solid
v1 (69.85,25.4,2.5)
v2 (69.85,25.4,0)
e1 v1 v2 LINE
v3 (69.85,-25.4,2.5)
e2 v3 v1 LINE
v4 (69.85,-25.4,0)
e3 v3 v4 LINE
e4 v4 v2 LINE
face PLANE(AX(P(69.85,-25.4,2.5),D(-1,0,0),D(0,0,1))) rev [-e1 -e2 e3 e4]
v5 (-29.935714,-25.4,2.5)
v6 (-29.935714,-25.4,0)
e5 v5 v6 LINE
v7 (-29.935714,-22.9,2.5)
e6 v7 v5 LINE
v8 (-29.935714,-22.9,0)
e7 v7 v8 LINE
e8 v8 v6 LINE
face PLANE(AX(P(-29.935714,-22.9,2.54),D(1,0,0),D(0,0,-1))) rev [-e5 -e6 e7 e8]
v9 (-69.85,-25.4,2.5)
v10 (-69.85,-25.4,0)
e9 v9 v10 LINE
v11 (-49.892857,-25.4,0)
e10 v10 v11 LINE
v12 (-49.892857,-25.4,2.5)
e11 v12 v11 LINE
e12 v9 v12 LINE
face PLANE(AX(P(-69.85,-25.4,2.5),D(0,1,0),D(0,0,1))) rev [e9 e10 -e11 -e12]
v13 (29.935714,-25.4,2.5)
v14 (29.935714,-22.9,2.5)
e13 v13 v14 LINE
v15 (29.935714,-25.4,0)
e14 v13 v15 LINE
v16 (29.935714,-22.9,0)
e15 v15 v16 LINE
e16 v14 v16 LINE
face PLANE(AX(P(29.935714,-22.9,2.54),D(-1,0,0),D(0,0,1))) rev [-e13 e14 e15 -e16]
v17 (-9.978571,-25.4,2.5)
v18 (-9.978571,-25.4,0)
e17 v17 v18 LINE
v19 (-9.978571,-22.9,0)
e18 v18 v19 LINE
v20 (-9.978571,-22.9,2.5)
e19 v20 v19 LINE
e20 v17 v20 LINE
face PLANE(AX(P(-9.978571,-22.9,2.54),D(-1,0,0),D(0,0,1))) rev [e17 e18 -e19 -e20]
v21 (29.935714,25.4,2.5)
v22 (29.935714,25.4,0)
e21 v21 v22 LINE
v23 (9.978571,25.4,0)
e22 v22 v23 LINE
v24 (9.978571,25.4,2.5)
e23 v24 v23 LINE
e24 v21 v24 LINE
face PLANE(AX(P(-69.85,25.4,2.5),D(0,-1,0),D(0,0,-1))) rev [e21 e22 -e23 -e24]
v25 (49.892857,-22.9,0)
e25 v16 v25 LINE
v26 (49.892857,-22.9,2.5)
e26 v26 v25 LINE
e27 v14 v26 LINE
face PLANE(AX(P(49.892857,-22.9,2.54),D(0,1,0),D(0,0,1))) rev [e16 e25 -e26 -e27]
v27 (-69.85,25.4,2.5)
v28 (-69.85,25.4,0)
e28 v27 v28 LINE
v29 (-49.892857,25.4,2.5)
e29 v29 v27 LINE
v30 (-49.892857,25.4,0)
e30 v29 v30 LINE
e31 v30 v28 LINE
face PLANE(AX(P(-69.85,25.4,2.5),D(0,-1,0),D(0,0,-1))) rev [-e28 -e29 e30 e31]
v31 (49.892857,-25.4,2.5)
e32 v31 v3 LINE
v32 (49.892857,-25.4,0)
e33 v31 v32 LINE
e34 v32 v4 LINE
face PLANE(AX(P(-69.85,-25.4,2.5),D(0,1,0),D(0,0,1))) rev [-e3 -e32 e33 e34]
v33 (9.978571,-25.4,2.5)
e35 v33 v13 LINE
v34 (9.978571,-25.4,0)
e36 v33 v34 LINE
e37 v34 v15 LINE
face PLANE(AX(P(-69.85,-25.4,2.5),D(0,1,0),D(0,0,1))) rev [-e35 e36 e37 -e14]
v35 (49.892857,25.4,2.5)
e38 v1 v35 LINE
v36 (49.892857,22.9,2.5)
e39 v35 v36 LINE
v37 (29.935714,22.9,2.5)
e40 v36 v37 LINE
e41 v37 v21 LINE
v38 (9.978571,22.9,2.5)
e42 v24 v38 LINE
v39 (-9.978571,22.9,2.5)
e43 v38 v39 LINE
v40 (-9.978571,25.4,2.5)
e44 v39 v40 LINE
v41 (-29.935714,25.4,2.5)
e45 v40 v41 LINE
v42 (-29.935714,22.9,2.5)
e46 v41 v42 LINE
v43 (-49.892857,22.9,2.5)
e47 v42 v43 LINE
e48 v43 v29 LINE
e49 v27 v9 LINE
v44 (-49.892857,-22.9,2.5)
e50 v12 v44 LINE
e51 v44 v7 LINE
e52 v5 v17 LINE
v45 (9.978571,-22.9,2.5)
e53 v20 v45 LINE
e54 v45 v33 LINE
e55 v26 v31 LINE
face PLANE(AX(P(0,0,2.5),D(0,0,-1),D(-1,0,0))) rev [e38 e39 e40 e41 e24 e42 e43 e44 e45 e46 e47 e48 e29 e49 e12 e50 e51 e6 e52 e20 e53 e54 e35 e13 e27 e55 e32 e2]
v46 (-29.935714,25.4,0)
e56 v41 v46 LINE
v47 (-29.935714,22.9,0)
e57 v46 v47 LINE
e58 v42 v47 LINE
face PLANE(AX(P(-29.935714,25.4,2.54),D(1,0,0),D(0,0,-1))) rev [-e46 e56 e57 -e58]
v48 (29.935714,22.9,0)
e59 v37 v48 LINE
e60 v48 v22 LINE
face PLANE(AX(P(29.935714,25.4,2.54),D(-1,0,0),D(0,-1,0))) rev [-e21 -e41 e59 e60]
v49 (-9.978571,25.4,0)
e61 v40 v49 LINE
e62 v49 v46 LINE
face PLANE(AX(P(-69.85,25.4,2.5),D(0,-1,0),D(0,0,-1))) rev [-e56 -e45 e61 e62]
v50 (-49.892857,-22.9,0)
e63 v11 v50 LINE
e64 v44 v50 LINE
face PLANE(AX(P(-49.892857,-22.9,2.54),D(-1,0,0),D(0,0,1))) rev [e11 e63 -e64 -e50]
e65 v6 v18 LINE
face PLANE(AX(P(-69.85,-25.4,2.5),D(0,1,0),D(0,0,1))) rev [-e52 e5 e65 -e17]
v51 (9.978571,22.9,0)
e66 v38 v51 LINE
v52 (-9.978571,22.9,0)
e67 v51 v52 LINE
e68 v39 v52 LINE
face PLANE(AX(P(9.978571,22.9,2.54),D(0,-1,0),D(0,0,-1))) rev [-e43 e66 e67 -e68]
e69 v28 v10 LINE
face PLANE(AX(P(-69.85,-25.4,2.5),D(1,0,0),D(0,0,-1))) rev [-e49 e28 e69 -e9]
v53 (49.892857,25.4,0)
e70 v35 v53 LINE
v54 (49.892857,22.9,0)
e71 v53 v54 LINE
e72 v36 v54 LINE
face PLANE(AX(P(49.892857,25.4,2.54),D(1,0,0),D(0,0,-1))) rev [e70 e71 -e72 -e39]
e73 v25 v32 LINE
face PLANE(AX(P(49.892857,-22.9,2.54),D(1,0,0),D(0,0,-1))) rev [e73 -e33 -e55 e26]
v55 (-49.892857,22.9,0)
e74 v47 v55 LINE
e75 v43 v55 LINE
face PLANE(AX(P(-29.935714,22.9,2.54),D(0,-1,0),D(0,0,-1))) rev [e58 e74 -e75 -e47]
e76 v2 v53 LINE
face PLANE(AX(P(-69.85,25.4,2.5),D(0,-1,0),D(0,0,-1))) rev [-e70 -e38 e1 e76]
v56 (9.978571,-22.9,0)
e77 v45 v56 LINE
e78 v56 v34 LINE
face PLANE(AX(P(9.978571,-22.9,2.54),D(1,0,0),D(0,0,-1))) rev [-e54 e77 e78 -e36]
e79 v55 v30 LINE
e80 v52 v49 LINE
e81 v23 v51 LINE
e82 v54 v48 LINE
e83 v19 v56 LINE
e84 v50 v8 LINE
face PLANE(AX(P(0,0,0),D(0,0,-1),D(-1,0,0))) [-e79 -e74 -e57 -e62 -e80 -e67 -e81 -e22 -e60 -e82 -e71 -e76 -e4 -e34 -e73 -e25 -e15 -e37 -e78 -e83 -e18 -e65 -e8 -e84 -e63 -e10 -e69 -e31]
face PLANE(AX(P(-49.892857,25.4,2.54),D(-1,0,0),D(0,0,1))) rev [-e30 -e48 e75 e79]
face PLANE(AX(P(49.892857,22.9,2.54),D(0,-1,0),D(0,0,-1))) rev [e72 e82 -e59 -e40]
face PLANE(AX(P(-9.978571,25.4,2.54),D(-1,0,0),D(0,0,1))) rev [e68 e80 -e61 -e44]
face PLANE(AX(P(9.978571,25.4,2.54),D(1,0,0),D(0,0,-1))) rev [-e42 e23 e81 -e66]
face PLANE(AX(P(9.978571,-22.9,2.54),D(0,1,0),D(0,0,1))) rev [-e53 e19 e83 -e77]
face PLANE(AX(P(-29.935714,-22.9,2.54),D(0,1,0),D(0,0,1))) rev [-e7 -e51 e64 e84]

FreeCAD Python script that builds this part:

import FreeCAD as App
import Part
import Sketcher
Q = App.Units.Quantity

doc = App.newDocument("Part")
body = doc.addObject("PartDesign::Body", "Body")

# Sketch on XY plane
sketch1 = body.newObject("Sketcher::SketchObject", "Sketch")
sketch1.AttachmentSupport = (doc.getObject("XY_Plane"), [""])
sketch1.MapMode = "FlatFace"
sketch1.addGeometry(Part.LineSegment(App.Vector(-70, 25, 0), App.Vector(-70, -25, 0)), False)
sketch1.addGeometry(Part.LineSegment(App.Vector(-70, -25, 0), App.Vector(70, -25, 0)), False)
sketch1.addGeometry(Part.LineSegment(App.Vector(70, -25, 0), App.Vector(70, 25, 0)), False)
sketch1.addGeometry(Part.LineSegment(App.Vector(70, 25, 0), App.Vector(-70, 25, 0)), False)
sketch1.addConstraint(Sketcher.Constraint("Coincident", 0, 2, 1, 1))
sketch1.addConstraint(Sketcher.Constraint("Coincident", 1, 2, 2, 1))
sketch1.addConstraint(Sketcher.Constraint("Coincident", 2, 2, 3, 1))
sketch1.addConstraint(Sketcher.Constraint("Coincident", 3, 2, 0, 1))
sketch1.addConstraint(Sketcher.Constraint("Vertical", 0))
sketch1.addConstraint(Sketcher.Constraint("Horizontal", 1))
sketch1.addConstraint(Sketcher.Constraint("Vertical", 2))
sketch1.addConstraint(Sketcher.Constraint("Horizontal", 3))
sketch1.addConstraint(Sketcher.Constraint("Symmetric", 0, 2, 2, 2, -1, 1))
sketch1.addConstraint(Sketcher.Constraint("DistanceY", 0, 2, 0, 1, Q("2 in")))
sketch1.addConstraint(Sketcher.Constraint("DistanceX", 1, 1, 1, 2, Q("5.5 in")))
pad1 = body.newObject("PartDesign::Pad", "Pad")
pad1.Profile = sketch1
pad1.Length = 2.5

# Sketch on XY plane
sketch2 = body.newObject("Sketcher::SketchObject", "Sketch001")
sketch2.AttachmentSupport = (doc.getObject("XY_Plane"), [""])
sketch2.MapMode = "FlatFace"
sketch2.addGeometry(Part.LineSegment(App.Vector(49.9, 25.4, 0), App.Vector(49.9, 22.9, 0)), False)
sketch2.addGeometry(Part.LineSegment(App.Vector(49.9, 22.9, 0), App.Vector(29.9, 22.9, 0)), False)
sketch2.addGeometry(Part.LineSegment(App.Vector(29.9, 22.9, 0), App.Vector(29.9, 25.4, 0)), False)
sketch2.addGeometry(Part.LineSegment(App.Vector(29.9, 25.4, 0), App.Vector(49.9, 25.4, 0)), False)
sketch2.addGeometry(Part.LineSegment(App.Vector(10, 25.4, 0), App.Vector(10, 22.9, 0)), False)
sketch2.addGeometry(Part.LineSegment(App.Vector(10, 22.9, 0), App.Vector(-10, 22.9, 0)), False)
sketch2.addGeometry(Part.LineSegment(App.Vector(-10, 22.9, 0), App.Vector(-10, 25.4, 0)), False)
sketch2.addGeometry(Part.LineSegment(App.Vector(-10, 25.4, 0), App.Vector(10, 25.4, 0)), False)
sketch2.addGeometry(Part.LineSegment(App.Vector(-29.9, 25.4, 0), App.Vector(-29.9, 22.9, 0)), False)
sketch2.addGeometry(Part.LineSegment(App.Vector(-29.9, 22.9, 0), App.Vector(-49.9, 22.9, 0)), False)
sketch2.addGeometry(Part.LineSegment(App.Vector(-49.9, 22.9, 0), App.Vector(-49.9, 25.4, 0)), False)
sketch2.addGeometry(Part.LineSegment(App.Vector(-49.9, 25.4, 0), App.Vector(-29.9, 25.4, 0)), False)
sketch2.addGeometry(Part.LineSegment(App.Vector(49.9, -22.9, 0), App.Vector(49.9, -25.4, 0)), False)
sketch2.addGeometry(Part.LineSegment(App.Vector(49.9, -25.4, 0), App.Vector(29.9, -25.4, 0)), False)
sketch2.addGeometry(Part.LineSegment(App.Vector(29.9, -25.4, 0), App.Vector(29.9, -22.9, 0)), False)
sketch2.addGeometry(Part.LineSegment(App.Vector(29.9, -22.9, 0), App.Vector(49.9, -22.9, 0)), False)
sketch2.addGeometry(Part.LineSegment(App.Vector(10, -22.9, 0), App.Vector(10, -25.4, 0)), False)
sketch2.addGeometry(Part.LineSegment(App.Vector(10, -25.4, 0), App.Vector(-10, -25.4, 0)), False)
sketch2.addGeometry(Part.LineSegment(App.Vector(-10, -25.4, 0), App.Vector(-10, -22.9, 0)), False)
sketch2.addGeometry(Part.LineSegment(App.Vector(-10, -22.9, 0), App.Vector(10, -22.9, 0)), False)
sketch2.addGeometry(Part.LineSegment(App.Vector(-29.9, -22.9, 0), App.Vector(-29.9, -25.4, 0)), False)
sketch2.addGeometry(Part.LineSegment(App.Vector(-29.9, -25.4, 0), App.Vector(-49.9, -25.4, 0)), False)
sketch2.addGeometry(Part.LineSegment(App.Vector(-49.9, -25.4, 0), App.Vector(-49.9, -22.9, 0)), False)
sketch2.addGeometry(Part.LineSegment(App.Vector(-49.9, -22.9, 0), App.Vector(-29.9, -22.9, 0)), False)
sketch2.addConstraint(Sketcher.Constraint("Coincident", 0, 2, 1, 1))
sketch2.addConstraint(Sketcher.Constraint("Coincident", 1, 2, 2, 1))
sketch2.addConstraint(Sketcher.Constraint("Coincident", 2, 2, 3, 1))
sketch2.addConstraint(Sketcher.Constraint("Coincident", 3, 2, 0, 1))
sketch2.addConstraint(Sketcher.Constraint("Coincident", 4, 2, 5, 1))
sketch2.addConstraint(Sketcher.Constraint("Coincident", 5, 2, 6, 1))
sketch2.addConstraint(Sketcher.Constraint("Coincident", 6, 2, 7, 1))
sketch2.addConstraint(Sketcher.Constraint("Coincident", 7, 2, 4, 1))
sketch2.addConstraint(Sketcher.Constraint("Coincident", 8, 2, 9, 1))
sketch2.addConstraint(Sketcher.Constraint("Coincident", 9, 2, 10, 1))
sketch2.addConstraint(Sketcher.Constraint("Coincident", 10, 2, 11, 1))
sketch2.addConstraint(Sketcher.Constraint("Coincident", 11, 2, 8, 1))
sketch2.addConstraint(Sketcher.Constraint("Coincident", 12, 2, 13, 1))
sketch2.addConstraint(Sketcher.Constraint("Coincident", 13, 2, 14, 1))
sketch2.addConstraint(Sketcher.Constraint("Coincident", 14, 2, 15, 1))
sketch2.addConstraint(Sketcher.Constraint("Coincident", 15, 2, 12, 1))
sketch2.addConstraint(Sketcher.Constraint("Coincident", 16, 2, 17, 1))
sketch2.addConstraint(Sketcher.Constraint("Coincident", 17, 2, 18, 1))
sketch2.addConstraint(Sketcher.Constraint("Coincident", 18, 2, 19, 1))
sketch2.addConstraint(Sketcher.Constraint("Coincident", 19, 2, 16, 1))
sketch2.addConstraint(Sketcher.Constraint("Coincident", 20, 2, 21, 1))
sketch2.addConstraint(Sketcher.Constraint("Coincident", 21, 2, 22, 1))
sketch2.addConstraint(Sketcher.Constraint("Coincident", 22, 2, 23, 1))
sketch2.addConstraint(Sketcher.Constraint("Coincident", 23, 2, 20, 1))
sketch2.addConstraint(Sketcher.Constraint("Vertical", 0))
sketch2.addConstraint(Sketcher.Constraint("Horizontal", 1))
sketch2.addConstraint(Sketcher.Constraint("Vertical", 2))
sketch2.addConstraint(Sketcher.Constraint("Horizontal", 3))
sketch2.addConstraint(Sketcher.Constraint("Vertical", 4))
sketch2.addConstraint(Sketcher.Constraint("Horizontal", 5))
sketch2.addConstraint(Sketcher.Constraint("Vertical", 6))
sketch2.addConstraint(Sketcher.Constraint("Horizontal", 7))
sketch2.addConstraint(Sketcher.Constraint("Vertical", 8))
sketch2.addConstraint(Sketcher.Constraint("Horizontal", 9))
sketch2.addConstraint(Sketcher.Constraint("Vertical", 10))
sketch2.addConstraint(Sketcher.Constraint("Horizontal", 11))
sketch2.addConstraint(Sketcher.Constraint("Vertical", 12))
sketch2.addConstraint(Sketcher.Constraint("Horizontal", 13))
sketch2.addConstraint(Sketcher.Constraint("Vertical", 14))
sketch2.addConstraint(Sketcher.Constraint("Horizontal", 15))
sketch2.addConstraint(Sketcher.Constraint("Vertical", 16))
sketch2.addConstraint(Sketcher.Constraint("Horizontal", 17))
sketch2.addConstraint(Sketcher.Constraint("Vertical", 18))
sketch2.addConstraint(Sketcher.Constraint("Horizontal", 19))
sketch2.addConstraint(Sketcher.Constraint("Vertical", 20))
sketch2.addConstraint(Sketcher.Constraint("Horizontal", 21))
sketch2.addConstraint(Sketcher.Constraint("Vertical", 22))
sketch2.addConstraint(Sketcher.Constraint("Horizontal", 23))
sketch2.addConstraint(Sketcher.Constraint("Symmetric", 10, 2, 12, 2, -1, 1))
sketch2.addConstraint(Sketcher.Constraint("Symmetric", 8, 2, 14, 2, -1, 1))
sketch2.addConstraint(Sketcher.Constraint("Symmetric", 6, 2, 16, 2, -1, 1))
sketch2.addConstraint(Sketcher.Constraint("Symmetric", 4, 2, 18, 2, -1, 1))
sketch2.addConstraint(Sketcher.Constraint("Symmetric", 2, 2, 20, 2, -1, 1))
sketch2.addConstraint(Sketcher.Constraint("Symmetric", 0, 2, 22, 2, -1, 1))
sketch2.addConstraint(Sketcher.Constraint("Symmetric", 1, 2, 8, 2, -2))
sketch2.addConstraint(Sketcher.Constraint("Symmetric", 3, 2, 10, 2, -2))
sketch2.addConstraint(Sketcher.Constraint("Horizontal", 1, 2, 4, 2))
sketch2.addConstraint(Sketcher.Constraint("Horizontal", 3, 2, 6, 2))
sketch2.addConstraint(Sketcher.Constraint("Vertical", 7, 2, 16, 2))
sketch2.addConstraint(Sketcher.Constraint("Equal", 3, 5))
sketch2.addConstraint(Sketcher.Constraint("DistanceY", -1, 1, 2, 2, Q("1 in")))
sketch2.addConstraint(Sketcher.Constraint("DistanceY", 0, 2, 0, 1, 2.5))
sketch2.addConstraint(Sketcher.Constraint("DistanceX", 1, 2, 1, 1, 19.957143))
sketch2.addConstraint(Sketcher.Constraint("DistanceX", 5, 2, 0, 2, 59.871429))
pocket1 = body.newObject("PartDesign::Pocket", "Pocket")
pocket1.Profile = sketch2
pocket1.Length = Q("0.1 in")
pocket1.Reversed = True

doc.recompute()
